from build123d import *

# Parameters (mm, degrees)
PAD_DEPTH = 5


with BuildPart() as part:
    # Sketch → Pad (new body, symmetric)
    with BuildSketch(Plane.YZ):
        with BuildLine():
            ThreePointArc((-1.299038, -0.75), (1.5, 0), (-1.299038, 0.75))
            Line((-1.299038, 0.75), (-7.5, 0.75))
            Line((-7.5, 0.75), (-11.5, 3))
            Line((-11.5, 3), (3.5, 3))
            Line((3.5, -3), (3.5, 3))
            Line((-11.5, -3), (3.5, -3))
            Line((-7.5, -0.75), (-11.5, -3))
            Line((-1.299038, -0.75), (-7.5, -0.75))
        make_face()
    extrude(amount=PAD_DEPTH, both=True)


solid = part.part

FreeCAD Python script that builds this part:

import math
import FreeCAD as App
import Part
import Sketcher

doc = App.newDocument("Part")
body = doc.addObject("PartDesign::Body", "Body")

# Sketch on YZ plane
sketch1 = body.newObject("Sketcher::SketchObject", "Sketch")
sketch1.AttachmentSupport = (doc.getObject("YZ_Plane"), [""])
sketch1.MapMode = "FlatFace"
sketch1.addGeometry([
    Part.ArcOfCircle(Part.Circle(App.Vector(0, 0, 0), App.Vector(0, 0, 1), 1.5), math.radians(-150), math.radians(150)),  # 0
    Part.LineSegment(App.Vector(-1.3, -0.8, 0), App.Vector(-7.5, -0.8, 0)),  # 1
    Part.LineSegment(App.Vector(-7.5, -0.8, 0), App.Vector(-11.5, -3, 0)),  # 2
    Part.LineSegment(App.Vector(-11.5, -3, 0), App.Vector(3.5, -3, 0)),  # 3
    Part.LineSegment(App.Vector(3.5, -3, 0), App.Vector(3.5, 3, 0)),  # 4
    Part.LineSegment(App.Vector(3.5, 3, 0), App.Vector(-11.5, 3, 0)),  # 5
    Part.LineSegment(App.Vector(-11.5, 3, 0), App.Vector(-7.5, 0.8, 0)),  # 6
    Part.LineSegment(App.Vector(-7.5, 0.8, 0), App.Vector(-1.3, 0.8, 0)),  # 7
], False)
sketch1.addConstraint([
    Sketcher.Constraint("Coincident", 0, 1, 1, 1),
    Sketcher.Constraint("Coincident", 1, 2, 2, 1),
    Sketcher.Constraint("Coincident", 2, 2, 3, 1),
    Sketcher.Constraint("Coincident", 3, 2, 4, 1),
    Sketcher.Constraint("Coincident", 4, 2, 5, 1),
    Sketcher.Constraint("Coincident", 5, 2, 6, 1),
    Sketcher.Constraint("Coincident", 6, 2, 7, 1),
    Sketcher.Constraint("Coincident", 7, 2, 0, 2),
    Sketcher.Constraint("Horizontal", 1),
    Sketcher.Constraint("Horizontal", 3),
    Sketcher.Constraint("Vertical", 4),
    Sketcher.Constraint("Horizontal", 5),
    Sketcher.Constraint("Horizontal", 7),
    Sketcher.Constraint("Coincident", 0, 3, -1, 1),
    Sketcher.Constraint("Symmetric", 2, 2, 5, 2, -1),
    Sketcher.Constraint("Symmetric", 1, 2, 6, 2, -1),
    Sketcher.Constraint("Radius", 0, 1.5),
    Sketcher.Constraint("DistanceX", 3, 1, 3, 2, 15.0),
    Sketcher.Constraint("DistanceY", 4, 1, 4, 2, 6.0),
    Sketcher.Constraint("DistanceX", 2, 2, 1, 2, 4.0),
    Sketcher.Constraint("DistanceX", 1, 2, -1, 1, 7.5),
    Sketcher.Constraint("DistanceY", 1, 2, 6, 2, 1.5),
])
pad1 = body.newObject("PartDesign::Pad", "Pad")
pad1.Profile = sketch1
pad1.Length = 10
pad1.Midplane = True

doc.recompute()
